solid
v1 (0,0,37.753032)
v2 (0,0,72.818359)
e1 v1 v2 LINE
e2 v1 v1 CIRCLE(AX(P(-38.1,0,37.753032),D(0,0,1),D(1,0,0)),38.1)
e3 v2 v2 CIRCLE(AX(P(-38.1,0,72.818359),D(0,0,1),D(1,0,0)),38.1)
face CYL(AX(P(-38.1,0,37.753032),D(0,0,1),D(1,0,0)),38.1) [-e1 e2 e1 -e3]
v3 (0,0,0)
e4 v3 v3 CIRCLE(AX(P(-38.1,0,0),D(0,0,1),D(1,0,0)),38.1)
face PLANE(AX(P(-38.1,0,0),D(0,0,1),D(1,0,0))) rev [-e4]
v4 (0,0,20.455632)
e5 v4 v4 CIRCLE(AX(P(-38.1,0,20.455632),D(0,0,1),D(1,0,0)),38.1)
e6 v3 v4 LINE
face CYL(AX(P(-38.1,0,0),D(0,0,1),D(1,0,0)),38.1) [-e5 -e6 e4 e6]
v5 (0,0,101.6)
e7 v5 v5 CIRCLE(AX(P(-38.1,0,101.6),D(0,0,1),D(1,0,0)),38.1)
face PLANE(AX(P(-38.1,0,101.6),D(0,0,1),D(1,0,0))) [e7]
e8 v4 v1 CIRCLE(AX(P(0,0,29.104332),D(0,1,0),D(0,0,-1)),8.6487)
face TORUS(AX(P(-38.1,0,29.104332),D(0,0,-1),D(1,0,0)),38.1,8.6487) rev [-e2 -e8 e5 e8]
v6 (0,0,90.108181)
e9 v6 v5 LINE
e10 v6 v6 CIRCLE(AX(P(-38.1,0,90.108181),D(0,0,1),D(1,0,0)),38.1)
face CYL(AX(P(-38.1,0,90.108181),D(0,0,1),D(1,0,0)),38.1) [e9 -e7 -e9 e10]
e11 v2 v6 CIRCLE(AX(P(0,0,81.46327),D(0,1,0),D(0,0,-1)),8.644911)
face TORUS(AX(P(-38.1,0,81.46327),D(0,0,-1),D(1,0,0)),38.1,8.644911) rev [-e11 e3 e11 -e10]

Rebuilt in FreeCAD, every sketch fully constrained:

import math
import FreeCAD as App
import Part
import Sketcher
Q = App.Units.Quantity

doc = App.newDocument("Part")
body = doc.addObject("PartDesign::Body", "Body")

# Sketch on XZ plane
sketch1 = body.newObject("Sketcher::SketchObject", "Sketch")
sketch1.AttachmentSupport = (doc.getObject("XZ_Plane"), [""])
sketch1.MapMode = "FlatFace"
sketch1.addGeometry(Part.LineSegment(App.Vector(-38.1, 0, 0), App.Vector(0, 0, 0)), False)
sketch1.addGeometry(Part.LineSegment(App.Vector(0, 0, 0), App.Vector(0, 20.455632, 0)), False)
sketch1.addGeometry(Part.ArcOfCircle(Part.Circle(App.Vector(0, 29.104332, 0), App.Vector(0, 0, 1), 8.6487), math.radians(90), math.radians(270)), False)
sketch1.addGeometry(Part.LineSegment(App.Vector(0, 37.753032, 0), App.Vector(0, 72.818359, 0)), False)
sketch1.addGeometry(Part.ArcOfCircle(Part.Circle(App.Vector(0, 81.46327, 0), App.Vector(0, 0, 1), 8.644911), math.radians(90), math.radians(270)), False)
sketch1.addGeometry(Part.LineSegment(App.Vector(0, 90.108181, 0), App.Vector(0, 101.6, 0)), False)
sketch1.addGeometry(Part.LineSegment(App.Vector(0, 101.6, 0), App.Vector(-38.1, 101.6, 0)), False)
sketch1.addGeometry(Part.LineSegment(App.Vector(-38.1, 101.6, 0), App.Vector(-38.1, 0, 0)), False)
sketch1.addGeometry(Part.LineSegment(App.Vector(-38.1, 0, 0), App.Vector(-38.1, 101.6, 0)), True)  # axis
sketch1.addConstraint(Sketcher.Constraint("Coincident", 0, 2, 1, 1))
sketch1.addConstraint(Sketcher.Constraint("Coincident", 1, 2, 2, 2))
sketch1.addConstraint(Sketcher.Constraint("Coincident", 2, 1, 3, 1))
sketch1.addConstraint(Sketcher.Constraint("Coincident", 3, 2, 4, 2))
sketch1.addConstraint(Sketcher.Constraint("Coincident", 4, 1, 5, 1))
sketch1.addConstraint(Sketcher.Constraint("Coincident", 5, 2, 6, 1))
sketch1.addConstraint(Sketcher.Constraint("Coincident", 6, 2, 7, 1))
sketch1.addConstraint(Sketcher.Constraint("Coincident", 7, 2, 0, 1))
sketch1.addConstraint(Sketcher.Constraint("Horizontal", 0))
sketch1.addConstraint(Sketcher.Constraint("Vertical", 1))
sketch1.addConstraint(Sketcher.Constraint("Vertical", 3))
sketch1.addConstraint(Sketcher.Constraint("Vertical", 5))
sketch1.addConstraint(Sketcher.Constraint("Horizontal", 6))
sketch1.addConstraint(Sketcher.Constraint("Vertical", 7))
sketch1.addConstraint(Sketcher.Constraint("Vertical", 8))
sketch1.addConstraint(Sketcher.Constraint("Coincident", 0, 2, -1, 1))
sketch1.addConstraint(Sketcher.Constraint("Coincident", 8, 1, 7, 2))
sketch1.addConstraint(Sketcher.Constraint("PointOnObject", 2, 3, -2))
sketch1.addConstraint(Sketcher.Constraint("PointOnObject", 4, 3, -2))
sketch1.addConstraint(Sketcher.Constraint("PointOnObject", 2, 1, -2))
sketch1.addConstraint(Sketcher.Constraint("PointOnObject", 4, 1, -2))
sketch1.addConstraint(Sketcher.Constraint("Horizontal", 5, 2, 8, 2))
sketch1.addConstraint(Sketcher.Constraint("DistanceY", 7, 2, 7, 1, Q("4 in")))
sketch1.addConstraint(Sketcher.Constraint("DistanceX", 0, 1, 0, 2, Q("1.5 in")))
sketch1.addConstraint(Sketcher.Constraint("Radius", 2, Q("0.3405 in")))
sketch1.addConstraint(Sketcher.Constraint("Radius", 4, 8.644911))
sketch1.addConstraint(Sketcher.Constraint("DistanceY", 5, 1, 5, 2, 11.491819))
sketch1.addConstraint(Sketcher.Constraint("DistanceY", 1, 1, 1, 2, 20.455632))
revolution = body.newObject("PartDesign::Revolution", "Revolution")
revolution.Profile = sketch1
revolution.ReferenceAxis = (sketch1, ["Axis0"])
revolution.Angle = 360

doc.recompute()
